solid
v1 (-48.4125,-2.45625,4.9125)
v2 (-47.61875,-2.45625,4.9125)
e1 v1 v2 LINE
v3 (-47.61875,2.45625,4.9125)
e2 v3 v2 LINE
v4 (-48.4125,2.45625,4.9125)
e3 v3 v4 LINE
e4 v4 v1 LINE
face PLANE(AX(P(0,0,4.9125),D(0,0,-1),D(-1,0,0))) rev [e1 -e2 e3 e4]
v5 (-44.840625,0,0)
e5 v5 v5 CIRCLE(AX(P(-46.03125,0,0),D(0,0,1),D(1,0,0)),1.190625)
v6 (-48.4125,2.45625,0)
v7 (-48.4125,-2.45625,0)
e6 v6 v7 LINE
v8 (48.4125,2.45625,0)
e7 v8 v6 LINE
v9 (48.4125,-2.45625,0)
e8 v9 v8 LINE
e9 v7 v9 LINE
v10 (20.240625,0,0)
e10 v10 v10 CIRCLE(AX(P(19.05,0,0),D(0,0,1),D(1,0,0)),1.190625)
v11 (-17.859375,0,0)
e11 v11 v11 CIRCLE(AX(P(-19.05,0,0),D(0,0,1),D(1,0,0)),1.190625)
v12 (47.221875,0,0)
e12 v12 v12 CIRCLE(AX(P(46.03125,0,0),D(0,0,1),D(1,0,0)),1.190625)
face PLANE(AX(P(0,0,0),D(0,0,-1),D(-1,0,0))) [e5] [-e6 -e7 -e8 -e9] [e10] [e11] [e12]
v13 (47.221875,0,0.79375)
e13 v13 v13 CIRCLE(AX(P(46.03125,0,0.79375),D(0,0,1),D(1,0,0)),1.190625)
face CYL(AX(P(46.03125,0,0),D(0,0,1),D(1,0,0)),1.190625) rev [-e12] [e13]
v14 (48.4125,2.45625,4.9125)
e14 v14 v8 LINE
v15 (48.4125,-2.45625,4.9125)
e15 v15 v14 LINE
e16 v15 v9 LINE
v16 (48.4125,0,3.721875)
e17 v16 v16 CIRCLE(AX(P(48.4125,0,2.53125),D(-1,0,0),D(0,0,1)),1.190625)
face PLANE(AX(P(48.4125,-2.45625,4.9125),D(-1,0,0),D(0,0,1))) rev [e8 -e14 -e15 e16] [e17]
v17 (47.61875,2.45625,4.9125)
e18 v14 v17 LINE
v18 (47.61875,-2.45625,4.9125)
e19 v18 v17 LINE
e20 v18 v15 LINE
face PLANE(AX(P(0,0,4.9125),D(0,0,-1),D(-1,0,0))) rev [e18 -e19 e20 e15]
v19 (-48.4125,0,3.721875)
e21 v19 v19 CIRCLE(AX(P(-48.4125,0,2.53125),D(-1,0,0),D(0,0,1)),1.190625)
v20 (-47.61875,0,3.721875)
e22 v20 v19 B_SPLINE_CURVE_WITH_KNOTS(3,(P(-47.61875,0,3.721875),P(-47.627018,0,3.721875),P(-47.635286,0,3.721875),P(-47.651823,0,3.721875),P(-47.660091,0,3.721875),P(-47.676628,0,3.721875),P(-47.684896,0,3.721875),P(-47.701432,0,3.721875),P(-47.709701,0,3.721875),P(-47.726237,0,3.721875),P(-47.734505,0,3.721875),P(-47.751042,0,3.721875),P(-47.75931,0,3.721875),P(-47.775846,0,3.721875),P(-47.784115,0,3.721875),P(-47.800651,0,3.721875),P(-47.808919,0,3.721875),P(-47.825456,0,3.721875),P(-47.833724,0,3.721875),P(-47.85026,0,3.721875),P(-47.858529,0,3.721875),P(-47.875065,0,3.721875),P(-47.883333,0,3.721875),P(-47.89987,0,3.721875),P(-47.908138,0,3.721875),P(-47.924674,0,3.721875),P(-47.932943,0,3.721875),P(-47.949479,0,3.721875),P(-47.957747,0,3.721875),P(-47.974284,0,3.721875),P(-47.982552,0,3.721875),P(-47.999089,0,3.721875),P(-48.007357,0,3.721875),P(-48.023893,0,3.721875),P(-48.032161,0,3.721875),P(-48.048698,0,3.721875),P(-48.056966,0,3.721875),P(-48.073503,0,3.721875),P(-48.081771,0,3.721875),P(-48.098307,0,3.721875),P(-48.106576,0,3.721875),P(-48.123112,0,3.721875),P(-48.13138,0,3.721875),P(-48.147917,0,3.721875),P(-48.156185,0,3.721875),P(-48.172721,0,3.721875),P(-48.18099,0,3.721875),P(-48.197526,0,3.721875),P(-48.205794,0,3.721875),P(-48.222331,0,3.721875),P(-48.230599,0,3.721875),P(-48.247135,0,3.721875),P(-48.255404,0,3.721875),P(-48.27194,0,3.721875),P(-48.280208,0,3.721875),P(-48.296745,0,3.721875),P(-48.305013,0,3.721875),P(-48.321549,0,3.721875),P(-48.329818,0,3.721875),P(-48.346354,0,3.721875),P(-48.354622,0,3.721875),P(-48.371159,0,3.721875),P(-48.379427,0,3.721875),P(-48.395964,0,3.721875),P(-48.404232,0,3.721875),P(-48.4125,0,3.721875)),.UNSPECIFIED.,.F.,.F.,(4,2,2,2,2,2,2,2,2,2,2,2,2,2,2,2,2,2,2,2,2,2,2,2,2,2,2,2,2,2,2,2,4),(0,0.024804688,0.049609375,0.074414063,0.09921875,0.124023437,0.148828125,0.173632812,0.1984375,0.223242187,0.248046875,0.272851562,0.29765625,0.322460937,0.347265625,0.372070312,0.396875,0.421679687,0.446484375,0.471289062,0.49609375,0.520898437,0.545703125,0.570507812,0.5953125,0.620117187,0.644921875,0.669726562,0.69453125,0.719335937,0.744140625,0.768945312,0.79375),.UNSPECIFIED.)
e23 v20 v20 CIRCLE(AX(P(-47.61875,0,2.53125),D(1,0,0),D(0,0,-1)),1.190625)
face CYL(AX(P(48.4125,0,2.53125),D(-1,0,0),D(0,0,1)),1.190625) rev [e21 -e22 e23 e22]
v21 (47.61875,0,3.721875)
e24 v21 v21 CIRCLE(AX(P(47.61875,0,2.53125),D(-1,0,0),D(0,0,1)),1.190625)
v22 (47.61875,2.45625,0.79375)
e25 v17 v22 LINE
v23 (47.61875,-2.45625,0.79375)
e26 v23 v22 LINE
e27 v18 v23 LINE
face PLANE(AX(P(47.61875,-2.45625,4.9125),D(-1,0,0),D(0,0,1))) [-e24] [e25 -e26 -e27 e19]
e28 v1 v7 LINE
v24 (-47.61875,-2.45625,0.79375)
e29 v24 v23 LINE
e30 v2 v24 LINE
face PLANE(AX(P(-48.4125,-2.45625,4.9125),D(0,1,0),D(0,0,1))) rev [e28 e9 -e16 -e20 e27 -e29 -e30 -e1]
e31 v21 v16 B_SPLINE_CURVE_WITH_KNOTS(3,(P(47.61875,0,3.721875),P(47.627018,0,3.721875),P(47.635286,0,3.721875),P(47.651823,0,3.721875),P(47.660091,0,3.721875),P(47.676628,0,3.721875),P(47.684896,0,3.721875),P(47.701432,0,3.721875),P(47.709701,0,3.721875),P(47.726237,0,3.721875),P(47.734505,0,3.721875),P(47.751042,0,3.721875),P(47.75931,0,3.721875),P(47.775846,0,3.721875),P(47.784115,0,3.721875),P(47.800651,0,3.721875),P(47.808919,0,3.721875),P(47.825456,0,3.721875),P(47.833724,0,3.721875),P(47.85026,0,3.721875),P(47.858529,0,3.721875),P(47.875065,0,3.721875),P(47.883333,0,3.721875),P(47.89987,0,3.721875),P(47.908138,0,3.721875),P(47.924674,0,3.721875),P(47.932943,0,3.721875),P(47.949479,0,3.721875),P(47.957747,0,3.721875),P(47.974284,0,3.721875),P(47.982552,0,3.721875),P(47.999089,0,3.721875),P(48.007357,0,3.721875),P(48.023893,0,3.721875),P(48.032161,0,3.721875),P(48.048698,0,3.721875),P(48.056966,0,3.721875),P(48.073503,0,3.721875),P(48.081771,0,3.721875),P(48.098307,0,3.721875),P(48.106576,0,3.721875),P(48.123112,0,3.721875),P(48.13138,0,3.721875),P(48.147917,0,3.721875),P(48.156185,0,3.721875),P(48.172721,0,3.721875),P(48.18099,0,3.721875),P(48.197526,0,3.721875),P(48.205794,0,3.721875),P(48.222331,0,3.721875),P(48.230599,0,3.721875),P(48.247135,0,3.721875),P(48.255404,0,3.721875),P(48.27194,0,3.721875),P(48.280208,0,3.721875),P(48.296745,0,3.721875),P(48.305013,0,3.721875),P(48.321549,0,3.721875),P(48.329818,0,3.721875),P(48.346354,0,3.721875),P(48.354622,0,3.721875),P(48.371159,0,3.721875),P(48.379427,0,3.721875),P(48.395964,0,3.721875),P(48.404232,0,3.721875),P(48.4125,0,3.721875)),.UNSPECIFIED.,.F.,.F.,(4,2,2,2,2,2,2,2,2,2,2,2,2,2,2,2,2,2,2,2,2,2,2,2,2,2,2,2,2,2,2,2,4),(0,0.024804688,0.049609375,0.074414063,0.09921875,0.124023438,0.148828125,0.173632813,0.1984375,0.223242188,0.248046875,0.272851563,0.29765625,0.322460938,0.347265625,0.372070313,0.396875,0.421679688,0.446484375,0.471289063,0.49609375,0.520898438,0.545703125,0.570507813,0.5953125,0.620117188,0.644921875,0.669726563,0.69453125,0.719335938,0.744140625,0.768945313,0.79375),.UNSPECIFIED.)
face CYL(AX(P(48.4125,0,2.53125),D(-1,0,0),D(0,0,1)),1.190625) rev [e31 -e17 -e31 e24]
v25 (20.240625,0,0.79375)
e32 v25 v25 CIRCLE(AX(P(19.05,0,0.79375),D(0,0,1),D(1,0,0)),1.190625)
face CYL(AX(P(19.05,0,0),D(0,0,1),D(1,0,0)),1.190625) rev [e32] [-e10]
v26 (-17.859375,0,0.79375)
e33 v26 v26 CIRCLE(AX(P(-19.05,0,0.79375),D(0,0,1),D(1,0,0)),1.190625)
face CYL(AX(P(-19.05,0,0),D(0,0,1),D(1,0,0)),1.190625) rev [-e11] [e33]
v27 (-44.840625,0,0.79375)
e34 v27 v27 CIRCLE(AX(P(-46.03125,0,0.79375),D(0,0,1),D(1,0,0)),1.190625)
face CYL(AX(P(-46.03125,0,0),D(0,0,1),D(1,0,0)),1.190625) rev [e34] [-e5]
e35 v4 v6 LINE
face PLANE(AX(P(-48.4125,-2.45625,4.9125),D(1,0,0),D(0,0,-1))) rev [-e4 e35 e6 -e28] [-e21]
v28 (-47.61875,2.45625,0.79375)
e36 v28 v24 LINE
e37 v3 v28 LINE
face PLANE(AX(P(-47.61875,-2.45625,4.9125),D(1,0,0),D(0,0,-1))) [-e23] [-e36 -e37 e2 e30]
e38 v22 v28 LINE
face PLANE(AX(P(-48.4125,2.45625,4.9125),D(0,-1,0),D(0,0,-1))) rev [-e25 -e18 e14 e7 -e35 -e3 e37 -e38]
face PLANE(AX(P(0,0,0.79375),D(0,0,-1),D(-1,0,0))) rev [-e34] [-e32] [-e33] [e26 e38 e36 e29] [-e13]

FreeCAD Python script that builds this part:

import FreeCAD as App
import Part
import Sketcher
from FreeCAD import Vector
Q = App.Units.Quantity


def faces_at(feature, points):
    """Names of the faces that lie closest to the given points."""
    faces = feature.Shape.Faces
    near = lambda p: min(range(len(faces)), key=lambda i: faces[i].distToShape(Part.Vertex(*p))[0])
    return sorted({f"Face{near(p) + 1}" for p in points})


def add_polygon(sketch, points):
    """Adds a closed chain of lines whose ends are joined by coincident constraints."""
    first, n = sketch.GeometryCount, len(points)
    for a, b in zip(points, points[1:] + points[:1]):
        sketch.addGeometry(Part.LineSegment(App.Vector(*a, 0), App.Vector(*b, 0)), False)
    for i in range(n):
        sketch.addConstraint(Sketcher.Constraint("Coincident", first + i, 2, first + (i + 1) % n, 1))

doc = App.newDocument("Part")
body = doc.addObject("PartDesign::Body", "Body")

# Sketch on XY plane
sketch1 = doc.addObject("Sketcher::SketchObject", "Sketch")
body.addObject(sketch1)
sketch1.AttachmentSupport = (doc.XY_Plane, [""])
sketch1.MapMode = "FlatFace"
add_polygon(sketch1, [(-48.4, 2.5), (-48.4, -2.5), (48.4, -2.5), (48.4, 2.5)])  # lines 0-3
sketch1.addConstraint([
    Sketcher.Constraint("Vertical", 0),
    Sketcher.Constraint("Horizontal", 1),
    Sketcher.Constraint("Vertical", 2),
    Sketcher.Constraint("Horizontal", 3),
    Sketcher.Constraint("Symmetric", 0, 2, 2, 2, -1, 1),
    Sketcher.Constraint("DistanceX", 1, 1, 1, 2, Q("96.825 mm")),
    Sketcher.Constraint("DistanceY", 0, 2, 0, 1, Q("4.9125 mm")),
])
pad1 = doc.addObject("PartDesign::Pad", "Pad")
body.addObject(pad1)
pad1.Profile = sketch1
pad1.Length = 4.9125
doc.recompute()

thickness = doc.addObject("PartDesign::Thickness", "Thickness")
body.addObject(thickness)
thickness.Base = (pad1, faces_at(pad1, [(0, 0, 4.912), (0, -2.456, 2.456), (0, 2.456, 2.456)]))
thickness.Value = Q("0.03125 in")
thickness.Reversed = True
thickness.Join = "Intersection"

# Sketch on XY plane
sketch2 = doc.addObject("Sketcher::SketchObject", "Sketch001")
body.addObject(sketch2)
sketch2.AttachmentSupport = (doc.XY_Plane, [""])
sketch2.MapMode = "FlatFace"
sketch2.AttachmentOffset = App.Placement(Vector(0, 0, 0.03125 * 25.4), App.Rotation())
sketch2.addGeometry([
    Part.Circle(Vector(-46, 0, 0), Vector(0, 0, 1), 1.2),
    Part.Circle(Vector(-19.1, 0, 0), Vector(0, 0, 1), 1.2),
    Part.Circle(Vector(19.1, 0, 0), Vector(0, 0, 1), 1.2),
    Part.Circle(Vector(46, 0, 0), Vector(0, 0, 1), 1.2),
], False)
sketch2.addConstraint([
    Sketcher.Constraint("Equal", 0, 1),
    Sketcher.Constraint("Equal", 1, 2),
    Sketcher.Constraint("Equal", 2, 3),
    Sketcher.Constraint("Symmetric", 1, 3, 2, 3, -1, 1),
    Sketcher.Constraint("Symmetric", 0, 3, 3, 3, -1, 1),
    Sketcher.Constraint("PointOnObject", 0, 3, -1),
    Sketcher.Constraint("PointOnObject", 1, 3, -1),
    Sketcher.Constraint("Diameter", 0, Q("0.09375 in")),
    Sketcher.Constraint("DistanceX", 1, 3, 2, 3, Q("1.5 in")),
    Sketcher.Constraint("DistanceX", 0, 3, 3, 3, Q("92.0625 mm")),
])
pocket1 = doc.addObject("PartDesign::Pocket", "Pocket")
body.addObject(pocket1)
pocket1.Profile = sketch2
pocket1.Type = "ThroughAll"

# Sketch on YZ plane
sketch3 = doc.addObject("Sketcher::SketchObject", "Sketch002")
body.addObject(sketch3)
sketch3.AttachmentSupport = (doc.YZ_Plane, [""])
sketch3.MapMode = "FlatFace"
sketch3.AttachmentOffset = App.Placement(Vector(0, 0, -48.4125), App.Rotation())
sketch3.addGeometry(Part.Circle(Vector(0, 2.5, 0), Vector(0, 0, 1), 1.2), False)
sketch3.addConstraint([
    Sketcher.Constraint("PointOnObject", 0, 3, -2),
    Sketcher.Constraint("Diameter", 0, Q("0.09375 in")),
    Sketcher.Constraint("DistanceY", -1, 1, 0, 3, Q("2.53125 mm")),
])
pocket2 = doc.addObject("PartDesign::Pocket", "Pocket001")
body.addObject(pocket2)
pocket2.Profile = sketch3
pocket2.Type = "ThroughAll"
pocket2.Reversed = True

doc.recompute()
